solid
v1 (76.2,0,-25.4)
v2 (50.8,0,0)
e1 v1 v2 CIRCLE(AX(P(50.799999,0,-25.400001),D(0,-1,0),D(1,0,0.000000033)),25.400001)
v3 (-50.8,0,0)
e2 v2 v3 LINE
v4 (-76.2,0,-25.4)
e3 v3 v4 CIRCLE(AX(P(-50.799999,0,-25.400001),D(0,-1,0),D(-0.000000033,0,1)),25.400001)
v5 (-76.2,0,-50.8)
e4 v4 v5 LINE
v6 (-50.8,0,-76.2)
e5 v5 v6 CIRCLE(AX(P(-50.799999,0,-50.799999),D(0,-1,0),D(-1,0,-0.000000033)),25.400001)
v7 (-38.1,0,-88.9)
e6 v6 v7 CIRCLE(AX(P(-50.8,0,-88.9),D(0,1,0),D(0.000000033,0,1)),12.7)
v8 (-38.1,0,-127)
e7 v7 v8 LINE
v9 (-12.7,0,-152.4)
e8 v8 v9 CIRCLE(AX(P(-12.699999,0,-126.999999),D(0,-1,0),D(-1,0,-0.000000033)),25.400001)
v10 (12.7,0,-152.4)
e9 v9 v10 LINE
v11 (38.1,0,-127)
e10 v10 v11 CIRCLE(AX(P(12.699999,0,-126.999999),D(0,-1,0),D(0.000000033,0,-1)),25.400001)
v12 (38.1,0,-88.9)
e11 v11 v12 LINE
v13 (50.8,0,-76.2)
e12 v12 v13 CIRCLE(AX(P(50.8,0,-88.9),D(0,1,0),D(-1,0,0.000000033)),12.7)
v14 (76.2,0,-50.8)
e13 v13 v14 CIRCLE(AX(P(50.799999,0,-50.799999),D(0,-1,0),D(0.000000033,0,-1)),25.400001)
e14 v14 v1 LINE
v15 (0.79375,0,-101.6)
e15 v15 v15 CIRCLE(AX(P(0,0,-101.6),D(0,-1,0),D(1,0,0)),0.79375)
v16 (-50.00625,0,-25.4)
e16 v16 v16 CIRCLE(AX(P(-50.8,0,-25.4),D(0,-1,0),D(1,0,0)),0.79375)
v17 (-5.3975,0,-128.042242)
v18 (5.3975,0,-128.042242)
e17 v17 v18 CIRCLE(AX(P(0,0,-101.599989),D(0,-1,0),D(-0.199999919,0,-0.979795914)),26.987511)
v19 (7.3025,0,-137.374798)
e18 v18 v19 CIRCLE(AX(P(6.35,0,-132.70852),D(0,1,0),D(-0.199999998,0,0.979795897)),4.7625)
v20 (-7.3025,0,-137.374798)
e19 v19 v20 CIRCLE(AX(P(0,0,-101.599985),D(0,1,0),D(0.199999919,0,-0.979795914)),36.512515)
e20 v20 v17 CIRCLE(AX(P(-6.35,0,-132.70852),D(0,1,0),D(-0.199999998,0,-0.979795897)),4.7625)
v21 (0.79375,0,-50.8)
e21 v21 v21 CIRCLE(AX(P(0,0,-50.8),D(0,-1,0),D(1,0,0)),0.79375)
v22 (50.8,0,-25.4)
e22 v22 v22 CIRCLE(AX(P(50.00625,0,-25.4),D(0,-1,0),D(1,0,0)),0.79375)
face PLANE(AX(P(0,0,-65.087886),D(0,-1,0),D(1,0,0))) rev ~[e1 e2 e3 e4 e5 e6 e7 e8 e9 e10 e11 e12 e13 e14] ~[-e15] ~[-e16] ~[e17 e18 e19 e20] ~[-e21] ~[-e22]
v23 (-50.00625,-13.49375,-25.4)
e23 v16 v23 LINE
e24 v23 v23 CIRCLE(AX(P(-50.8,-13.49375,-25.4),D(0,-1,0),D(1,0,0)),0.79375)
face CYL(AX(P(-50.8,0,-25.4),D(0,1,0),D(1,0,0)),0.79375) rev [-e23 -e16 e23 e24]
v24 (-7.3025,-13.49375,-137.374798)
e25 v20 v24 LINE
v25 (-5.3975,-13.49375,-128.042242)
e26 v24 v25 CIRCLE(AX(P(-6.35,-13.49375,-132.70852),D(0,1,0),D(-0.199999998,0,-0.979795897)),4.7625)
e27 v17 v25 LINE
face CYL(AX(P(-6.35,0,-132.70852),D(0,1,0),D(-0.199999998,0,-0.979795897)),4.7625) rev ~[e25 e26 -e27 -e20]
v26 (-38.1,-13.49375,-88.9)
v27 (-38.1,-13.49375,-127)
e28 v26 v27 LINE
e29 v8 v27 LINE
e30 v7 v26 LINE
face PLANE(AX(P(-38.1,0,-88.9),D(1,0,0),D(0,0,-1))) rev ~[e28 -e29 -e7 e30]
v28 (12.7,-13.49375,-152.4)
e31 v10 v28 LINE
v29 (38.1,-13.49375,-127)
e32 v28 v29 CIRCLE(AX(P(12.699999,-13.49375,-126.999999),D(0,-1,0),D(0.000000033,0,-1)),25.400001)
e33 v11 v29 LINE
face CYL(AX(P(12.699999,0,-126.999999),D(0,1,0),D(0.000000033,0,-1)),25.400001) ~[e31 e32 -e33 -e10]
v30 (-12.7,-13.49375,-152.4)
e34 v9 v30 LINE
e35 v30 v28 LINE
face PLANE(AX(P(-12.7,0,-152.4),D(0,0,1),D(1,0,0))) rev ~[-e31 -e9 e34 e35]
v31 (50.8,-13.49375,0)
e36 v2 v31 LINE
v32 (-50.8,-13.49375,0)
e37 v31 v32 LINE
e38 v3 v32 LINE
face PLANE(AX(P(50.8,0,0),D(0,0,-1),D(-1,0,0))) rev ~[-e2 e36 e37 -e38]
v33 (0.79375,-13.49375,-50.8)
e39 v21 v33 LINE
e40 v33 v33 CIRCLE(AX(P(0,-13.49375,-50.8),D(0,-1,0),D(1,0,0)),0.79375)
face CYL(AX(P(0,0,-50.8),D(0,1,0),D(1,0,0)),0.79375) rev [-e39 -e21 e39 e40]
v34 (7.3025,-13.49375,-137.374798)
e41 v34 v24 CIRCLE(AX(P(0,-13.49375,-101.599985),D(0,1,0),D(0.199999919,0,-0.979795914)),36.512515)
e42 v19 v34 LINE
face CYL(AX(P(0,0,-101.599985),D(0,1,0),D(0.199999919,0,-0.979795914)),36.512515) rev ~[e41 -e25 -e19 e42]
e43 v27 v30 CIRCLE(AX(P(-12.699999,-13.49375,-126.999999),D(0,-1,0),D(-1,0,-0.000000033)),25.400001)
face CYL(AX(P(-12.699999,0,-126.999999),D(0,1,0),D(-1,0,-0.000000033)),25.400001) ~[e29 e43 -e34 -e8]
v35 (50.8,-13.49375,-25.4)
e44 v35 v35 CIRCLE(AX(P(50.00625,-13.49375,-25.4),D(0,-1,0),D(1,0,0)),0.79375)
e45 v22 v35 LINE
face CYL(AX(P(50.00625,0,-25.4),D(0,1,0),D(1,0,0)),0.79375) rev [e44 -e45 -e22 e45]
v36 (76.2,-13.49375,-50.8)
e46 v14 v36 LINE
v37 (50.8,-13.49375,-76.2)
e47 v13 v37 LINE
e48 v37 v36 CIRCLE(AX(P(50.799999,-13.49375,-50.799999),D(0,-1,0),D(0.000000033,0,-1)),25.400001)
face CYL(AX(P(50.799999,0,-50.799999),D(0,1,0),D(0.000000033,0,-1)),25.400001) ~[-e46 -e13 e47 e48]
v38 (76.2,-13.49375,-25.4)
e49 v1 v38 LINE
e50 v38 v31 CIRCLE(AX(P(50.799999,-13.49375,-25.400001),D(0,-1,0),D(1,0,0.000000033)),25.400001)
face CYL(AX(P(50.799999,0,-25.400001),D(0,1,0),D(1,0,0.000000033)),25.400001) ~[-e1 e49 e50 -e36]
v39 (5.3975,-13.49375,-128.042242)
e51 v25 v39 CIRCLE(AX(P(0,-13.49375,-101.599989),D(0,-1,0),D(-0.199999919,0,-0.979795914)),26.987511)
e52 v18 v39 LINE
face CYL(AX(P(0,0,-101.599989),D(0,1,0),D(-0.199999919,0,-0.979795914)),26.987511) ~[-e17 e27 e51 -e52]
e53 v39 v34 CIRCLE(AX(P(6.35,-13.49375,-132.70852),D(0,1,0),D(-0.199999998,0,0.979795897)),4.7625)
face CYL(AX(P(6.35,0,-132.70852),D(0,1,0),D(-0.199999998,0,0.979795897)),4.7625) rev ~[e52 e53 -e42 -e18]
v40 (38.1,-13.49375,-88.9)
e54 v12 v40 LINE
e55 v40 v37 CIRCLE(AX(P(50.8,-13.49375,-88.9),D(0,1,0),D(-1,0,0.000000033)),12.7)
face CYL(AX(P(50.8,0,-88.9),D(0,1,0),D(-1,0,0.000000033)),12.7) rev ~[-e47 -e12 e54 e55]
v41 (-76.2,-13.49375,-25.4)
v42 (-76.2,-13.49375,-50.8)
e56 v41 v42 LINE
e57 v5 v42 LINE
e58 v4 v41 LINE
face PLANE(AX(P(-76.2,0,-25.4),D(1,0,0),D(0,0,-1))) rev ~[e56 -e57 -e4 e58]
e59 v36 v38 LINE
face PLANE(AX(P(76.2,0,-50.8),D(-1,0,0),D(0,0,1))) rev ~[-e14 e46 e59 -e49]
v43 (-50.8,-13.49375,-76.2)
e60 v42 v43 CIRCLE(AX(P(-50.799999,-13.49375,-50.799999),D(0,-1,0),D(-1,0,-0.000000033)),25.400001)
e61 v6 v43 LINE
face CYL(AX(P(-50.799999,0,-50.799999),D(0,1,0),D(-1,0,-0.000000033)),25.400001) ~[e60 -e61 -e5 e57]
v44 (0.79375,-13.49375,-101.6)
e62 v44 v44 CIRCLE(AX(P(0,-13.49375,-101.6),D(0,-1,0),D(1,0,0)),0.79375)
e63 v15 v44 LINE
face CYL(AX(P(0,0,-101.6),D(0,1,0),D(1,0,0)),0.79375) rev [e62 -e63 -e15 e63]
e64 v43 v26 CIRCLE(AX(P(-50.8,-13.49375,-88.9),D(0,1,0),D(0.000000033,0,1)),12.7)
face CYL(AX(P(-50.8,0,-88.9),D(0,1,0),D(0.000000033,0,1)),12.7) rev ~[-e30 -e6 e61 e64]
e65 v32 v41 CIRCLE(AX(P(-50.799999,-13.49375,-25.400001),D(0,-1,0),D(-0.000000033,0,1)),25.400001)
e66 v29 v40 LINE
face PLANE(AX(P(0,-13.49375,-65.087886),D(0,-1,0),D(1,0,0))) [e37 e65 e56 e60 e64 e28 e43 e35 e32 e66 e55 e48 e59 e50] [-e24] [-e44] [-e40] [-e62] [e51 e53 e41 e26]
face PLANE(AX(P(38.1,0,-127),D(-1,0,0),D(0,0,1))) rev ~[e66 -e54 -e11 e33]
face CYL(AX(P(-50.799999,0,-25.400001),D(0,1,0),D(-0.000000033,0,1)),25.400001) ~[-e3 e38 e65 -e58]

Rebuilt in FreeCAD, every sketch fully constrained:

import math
import FreeCAD as App
import Part
import Sketcher
from FreeCAD import Vector
Q = App.Units.Quantity

doc = App.newDocument("Part")
params = doc.addObject("Spreadsheet::Sheet", "Params")
for row, (alias, value) in enumerate([
    ("sketch1_radius", "1 in"),
    ("sketch1_radius2", "0.5 in"),
    ("sketch1_width", "4 in"),
    ("sketch1_diameter", "0.0625 in"),
    ("sketch1_height", "1.5 in"),
    ("pad1_length", "0.53125 in"),
], start=1):
    params.set(f"A{row}", alias)
    params.set(f"B{row}", "=" + value)
    params.setAlias(f"B{row}", alias)

body = doc.addObject("PartDesign::Body", "Body")

# Sketch on XZ plane
sketch1 = body.newObject("Sketcher::SketchObject", "Sketch")
sketch1.AttachmentSupport = (doc.getObject("XZ_Plane"), [""])
sketch1.MapMode = "FlatFace"
sketch1.addGeometry([
    Part.LineSegment(Vector(50.8, 0, 0), Vector(-50.8, 0, 0)),  # 0
    Part.ArcOfCircle(Part.Circle(Vector(-50.8, -25.4, 0), Vector(0, 0, 1), 25.4), math.radians(90), math.radians(180)),  # 1
    Part.LineSegment(Vector(-76.2, -25.4, 0), Vector(-76.2, -50.8, 0)),  # 2
    Part.ArcOfCircle(Part.Circle(Vector(-50.8, -50.8, 0), Vector(0, 0, 1), 25.4), math.radians(-180), math.radians(-90)),  # 3
    Part.ArcOfCircle(Part.Circle(Vector(-50.8, -88.9, 0), Vector(0, 0, 1), 12.7), math.radians(0), math.radians(90)),  # 4
    Part.LineSegment(Vector(-38.1, -88.9, 0), Vector(-38.1, -127, 0)),  # 5
    Part.ArcOfCircle(Part.Circle(Vector(-12.7, -127, 0), Vector(0, 0, 1), 25.4), math.radians(-180), math.radians(-90)),  # 6
    Part.LineSegment(Vector(-12.7, -152.4, 0), Vector(12.7, -152.4, 0)),  # 7
    Part.ArcOfCircle(Part.Circle(Vector(12.7, -127, 0), Vector(0, 0, 1), 25.4), math.radians(-90), math.radians(0)),  # 8
    Part.LineSegment(Vector(38.1, -127, 0), Vector(38.1, -88.9, 0)),  # 9
    Part.ArcOfCircle(Part.Circle(Vector(50.8, -88.9, 0), Vector(0, 0, 1), 12.7), math.radians(90), math.radians(180)),  # 10
    Part.ArcOfCircle(Part.Circle(Vector(50.8, -50.8, 0), Vector(0, 0, 1), 25.4), math.radians(-90), math.radians(0)),  # 11
    Part.LineSegment(Vector(76.2, -50.8, 0), Vector(76.2, -25.4, 0)),  # 12
    Part.ArcOfCircle(Part.Circle(Vector(50.8, -25.4, 0), Vector(0, 0, 1), 25.4), math.radians(0), math.radians(90)),  # 13
    Part.ArcOfCircle(Part.Circle(Vector(0, -101.6, 0), Vector(0, 0, 1), 36.5), math.radians(-102), math.radians(-78)),  # 14
    Part.ArcOfCircle(Part.Circle(Vector(-6.3, -132.7, 0), Vector(0, 0, 1), 4.8), math.radians(78), math.radians(258)),  # 15
    Part.ArcOfCircle(Part.Circle(Vector(0, -101.6, 0), Vector(0, 0, 1), 27), math.radians(-102), math.radians(-78)),  # 16
    Part.ArcOfCircle(Part.Circle(Vector(6.3, -132.7, 0), Vector(0, 0, 1), 4.8), math.radians(-78), math.radians(102)),  # 17
    Part.Circle(Vector(0, -101.6, 0), Vector(0, 0, 1), 0.8),  # 18
    Part.Circle(Vector(-50.8, -25.4, 0), Vector(0, 0, 1), 0.8),  # 19
    Part.Circle(Vector(0, -50.8, 0), Vector(0, 0, 1), 0.8),  # 20
    Part.Circle(Vector(50, -25.4, 0), Vector(0, 0, 1), 0.8),  # 21
], False)
sketch1.addConstraint([
    Sketcher.Constraint("Tangent", 0, 2, 1, 1),
    Sketcher.Constraint("Tangent", 1, 2, 2, 1),
    Sketcher.Constraint("Tangent", 2, 2, 3, 1),
    Sketcher.Constraint("Tangent", 3, 2, 4, 2),
    Sketcher.Constraint("Tangent", 4, 1, 5, 1),
    Sketcher.Constraint("Tangent", 5, 2, 6, 1),
    Sketcher.Constraint("Tangent", 6, 2, 7, 1),
    Sketcher.Constraint("Tangent", 7, 2, 8, 1),
    Sketcher.Constraint("Tangent", 8, 2, 9, 1),
    Sketcher.Constraint("Tangent", 9, 2, 10, 2),
    Sketcher.Constraint("Tangent", 10, 1, 11, 1),
    Sketcher.Constraint("Tangent", 11, 2, 12, 1),
    Sketcher.Constraint("Tangent", 12, 2, 13, 1),
    Sketcher.Constraint("Tangent", 13, 2, 0, 1),
    Sketcher.Constraint("Tangent", 14, 1, 15, 2),
    Sketcher.Constraint("Tangent", 15, 1, 16, 1),
    Sketcher.Constraint("Tangent", 16, 2, 17, 2),
    Sketcher.Constraint("Tangent", 17, 1, 14, 2),
    Sketcher.Constraint("Horizontal", 0),
    Sketcher.Constraint("Vertical", 2),
    Sketcher.Constraint("Vertical", 5),
    Sketcher.Constraint("Horizontal", 7),
    Sketcher.Constraint("Vertical", 9),
    Sketcher.Constraint("Vertical", 12),
    Sketcher.Constraint("Coincident", 16, 3, 14, 3),
    Sketcher.Constraint("Coincident", 19, 3, 1, 3),
    Sketcher.Constraint("Equal", 1, 3),
    Sketcher.Constraint("Equal", 3, 6),
    Sketcher.Constraint("Equal", 6, 8),
    Sketcher.Constraint("Equal", 4, 10),
    Sketcher.Constraint("Equal", 8, 11),
    Sketcher.Constraint("Equal", 11, 13),
    Sketcher.Constraint("Equal", 18, 19),
    Sketcher.Constraint("Equal", 19, 20),
    Sketcher.Constraint("Equal", 20, 21),
    Sketcher.Constraint("Symmetric", 0, 2, 13, 2, -1, 1),
    Sketcher.Constraint("Symmetric", 4, 3, 10, 3, -2),
    Sketcher.Constraint("Symmetric", 15, 3, 17, 3, -2),
    Sketcher.Constraint("PointOnObject", 18, 3, -2),
    Sketcher.Constraint("PointOnObject", 20, 3, -2),
    Sketcher.Constraint("Horizontal", 11, 3, 20, 3),
    Sketcher.Constraint("Horizontal", 19, 3, 21, 3),
    Sketcher.Constraint("Vertical", 3, 3, 4, 3),
    Sketcher.Constraint("Equal", 7, 2),
    Sketcher.Constraint("Radius", 1, Q("1 in")),
    Sketcher.Constraint("Radius", 4, Q("0.5 in")),
    Sketcher.Constraint("DistanceX", 0, 2, 0, 1, Q("4 in")),
    Sketcher.Constraint("Diameter", 18, Q("0.0625 in")),
    Sketcher.Constraint("DistanceY", 5, 2, 5, 1, Q("1.5 in")),
    Sketcher.Constraint("DistanceY", 18, 3, -1, 1, Q("4 in")),
    Sketcher.Constraint("Radius", 15, Q("0.1875 in")),
    Sketcher.Constraint("DistanceX", 15, 3, 17, 3, Q("0.5 in")),
    Sketcher.Constraint("DistanceX", -1, 1, 21, 3, Q("1.96875 in")),
    Sketcher.Constraint("Radius", 16, Q("26.987511 mm")),
    Sketcher.Constraint("DistanceY", 14, 1, 6, 3, Q("10.374799 mm")),
])
sketch1.setExpression("Constraints[44]", "Params.sketch1_radius")
sketch1.setExpression("Constraints[45]", "Params.sketch1_radius2")
sketch1.setExpression("Constraints[46]", "Params.sketch1_width")
sketch1.setExpression("Constraints[47]", "Params.sketch1_diameter")
sketch1.setExpression("Constraints[48]", "Params.sketch1_height")
pad1 = body.newObject("PartDesign::Pad", "Pad")
pad1.Profile = sketch1
pad1.setExpression("Length", "Params.pad1_length")

doc.recompute()
